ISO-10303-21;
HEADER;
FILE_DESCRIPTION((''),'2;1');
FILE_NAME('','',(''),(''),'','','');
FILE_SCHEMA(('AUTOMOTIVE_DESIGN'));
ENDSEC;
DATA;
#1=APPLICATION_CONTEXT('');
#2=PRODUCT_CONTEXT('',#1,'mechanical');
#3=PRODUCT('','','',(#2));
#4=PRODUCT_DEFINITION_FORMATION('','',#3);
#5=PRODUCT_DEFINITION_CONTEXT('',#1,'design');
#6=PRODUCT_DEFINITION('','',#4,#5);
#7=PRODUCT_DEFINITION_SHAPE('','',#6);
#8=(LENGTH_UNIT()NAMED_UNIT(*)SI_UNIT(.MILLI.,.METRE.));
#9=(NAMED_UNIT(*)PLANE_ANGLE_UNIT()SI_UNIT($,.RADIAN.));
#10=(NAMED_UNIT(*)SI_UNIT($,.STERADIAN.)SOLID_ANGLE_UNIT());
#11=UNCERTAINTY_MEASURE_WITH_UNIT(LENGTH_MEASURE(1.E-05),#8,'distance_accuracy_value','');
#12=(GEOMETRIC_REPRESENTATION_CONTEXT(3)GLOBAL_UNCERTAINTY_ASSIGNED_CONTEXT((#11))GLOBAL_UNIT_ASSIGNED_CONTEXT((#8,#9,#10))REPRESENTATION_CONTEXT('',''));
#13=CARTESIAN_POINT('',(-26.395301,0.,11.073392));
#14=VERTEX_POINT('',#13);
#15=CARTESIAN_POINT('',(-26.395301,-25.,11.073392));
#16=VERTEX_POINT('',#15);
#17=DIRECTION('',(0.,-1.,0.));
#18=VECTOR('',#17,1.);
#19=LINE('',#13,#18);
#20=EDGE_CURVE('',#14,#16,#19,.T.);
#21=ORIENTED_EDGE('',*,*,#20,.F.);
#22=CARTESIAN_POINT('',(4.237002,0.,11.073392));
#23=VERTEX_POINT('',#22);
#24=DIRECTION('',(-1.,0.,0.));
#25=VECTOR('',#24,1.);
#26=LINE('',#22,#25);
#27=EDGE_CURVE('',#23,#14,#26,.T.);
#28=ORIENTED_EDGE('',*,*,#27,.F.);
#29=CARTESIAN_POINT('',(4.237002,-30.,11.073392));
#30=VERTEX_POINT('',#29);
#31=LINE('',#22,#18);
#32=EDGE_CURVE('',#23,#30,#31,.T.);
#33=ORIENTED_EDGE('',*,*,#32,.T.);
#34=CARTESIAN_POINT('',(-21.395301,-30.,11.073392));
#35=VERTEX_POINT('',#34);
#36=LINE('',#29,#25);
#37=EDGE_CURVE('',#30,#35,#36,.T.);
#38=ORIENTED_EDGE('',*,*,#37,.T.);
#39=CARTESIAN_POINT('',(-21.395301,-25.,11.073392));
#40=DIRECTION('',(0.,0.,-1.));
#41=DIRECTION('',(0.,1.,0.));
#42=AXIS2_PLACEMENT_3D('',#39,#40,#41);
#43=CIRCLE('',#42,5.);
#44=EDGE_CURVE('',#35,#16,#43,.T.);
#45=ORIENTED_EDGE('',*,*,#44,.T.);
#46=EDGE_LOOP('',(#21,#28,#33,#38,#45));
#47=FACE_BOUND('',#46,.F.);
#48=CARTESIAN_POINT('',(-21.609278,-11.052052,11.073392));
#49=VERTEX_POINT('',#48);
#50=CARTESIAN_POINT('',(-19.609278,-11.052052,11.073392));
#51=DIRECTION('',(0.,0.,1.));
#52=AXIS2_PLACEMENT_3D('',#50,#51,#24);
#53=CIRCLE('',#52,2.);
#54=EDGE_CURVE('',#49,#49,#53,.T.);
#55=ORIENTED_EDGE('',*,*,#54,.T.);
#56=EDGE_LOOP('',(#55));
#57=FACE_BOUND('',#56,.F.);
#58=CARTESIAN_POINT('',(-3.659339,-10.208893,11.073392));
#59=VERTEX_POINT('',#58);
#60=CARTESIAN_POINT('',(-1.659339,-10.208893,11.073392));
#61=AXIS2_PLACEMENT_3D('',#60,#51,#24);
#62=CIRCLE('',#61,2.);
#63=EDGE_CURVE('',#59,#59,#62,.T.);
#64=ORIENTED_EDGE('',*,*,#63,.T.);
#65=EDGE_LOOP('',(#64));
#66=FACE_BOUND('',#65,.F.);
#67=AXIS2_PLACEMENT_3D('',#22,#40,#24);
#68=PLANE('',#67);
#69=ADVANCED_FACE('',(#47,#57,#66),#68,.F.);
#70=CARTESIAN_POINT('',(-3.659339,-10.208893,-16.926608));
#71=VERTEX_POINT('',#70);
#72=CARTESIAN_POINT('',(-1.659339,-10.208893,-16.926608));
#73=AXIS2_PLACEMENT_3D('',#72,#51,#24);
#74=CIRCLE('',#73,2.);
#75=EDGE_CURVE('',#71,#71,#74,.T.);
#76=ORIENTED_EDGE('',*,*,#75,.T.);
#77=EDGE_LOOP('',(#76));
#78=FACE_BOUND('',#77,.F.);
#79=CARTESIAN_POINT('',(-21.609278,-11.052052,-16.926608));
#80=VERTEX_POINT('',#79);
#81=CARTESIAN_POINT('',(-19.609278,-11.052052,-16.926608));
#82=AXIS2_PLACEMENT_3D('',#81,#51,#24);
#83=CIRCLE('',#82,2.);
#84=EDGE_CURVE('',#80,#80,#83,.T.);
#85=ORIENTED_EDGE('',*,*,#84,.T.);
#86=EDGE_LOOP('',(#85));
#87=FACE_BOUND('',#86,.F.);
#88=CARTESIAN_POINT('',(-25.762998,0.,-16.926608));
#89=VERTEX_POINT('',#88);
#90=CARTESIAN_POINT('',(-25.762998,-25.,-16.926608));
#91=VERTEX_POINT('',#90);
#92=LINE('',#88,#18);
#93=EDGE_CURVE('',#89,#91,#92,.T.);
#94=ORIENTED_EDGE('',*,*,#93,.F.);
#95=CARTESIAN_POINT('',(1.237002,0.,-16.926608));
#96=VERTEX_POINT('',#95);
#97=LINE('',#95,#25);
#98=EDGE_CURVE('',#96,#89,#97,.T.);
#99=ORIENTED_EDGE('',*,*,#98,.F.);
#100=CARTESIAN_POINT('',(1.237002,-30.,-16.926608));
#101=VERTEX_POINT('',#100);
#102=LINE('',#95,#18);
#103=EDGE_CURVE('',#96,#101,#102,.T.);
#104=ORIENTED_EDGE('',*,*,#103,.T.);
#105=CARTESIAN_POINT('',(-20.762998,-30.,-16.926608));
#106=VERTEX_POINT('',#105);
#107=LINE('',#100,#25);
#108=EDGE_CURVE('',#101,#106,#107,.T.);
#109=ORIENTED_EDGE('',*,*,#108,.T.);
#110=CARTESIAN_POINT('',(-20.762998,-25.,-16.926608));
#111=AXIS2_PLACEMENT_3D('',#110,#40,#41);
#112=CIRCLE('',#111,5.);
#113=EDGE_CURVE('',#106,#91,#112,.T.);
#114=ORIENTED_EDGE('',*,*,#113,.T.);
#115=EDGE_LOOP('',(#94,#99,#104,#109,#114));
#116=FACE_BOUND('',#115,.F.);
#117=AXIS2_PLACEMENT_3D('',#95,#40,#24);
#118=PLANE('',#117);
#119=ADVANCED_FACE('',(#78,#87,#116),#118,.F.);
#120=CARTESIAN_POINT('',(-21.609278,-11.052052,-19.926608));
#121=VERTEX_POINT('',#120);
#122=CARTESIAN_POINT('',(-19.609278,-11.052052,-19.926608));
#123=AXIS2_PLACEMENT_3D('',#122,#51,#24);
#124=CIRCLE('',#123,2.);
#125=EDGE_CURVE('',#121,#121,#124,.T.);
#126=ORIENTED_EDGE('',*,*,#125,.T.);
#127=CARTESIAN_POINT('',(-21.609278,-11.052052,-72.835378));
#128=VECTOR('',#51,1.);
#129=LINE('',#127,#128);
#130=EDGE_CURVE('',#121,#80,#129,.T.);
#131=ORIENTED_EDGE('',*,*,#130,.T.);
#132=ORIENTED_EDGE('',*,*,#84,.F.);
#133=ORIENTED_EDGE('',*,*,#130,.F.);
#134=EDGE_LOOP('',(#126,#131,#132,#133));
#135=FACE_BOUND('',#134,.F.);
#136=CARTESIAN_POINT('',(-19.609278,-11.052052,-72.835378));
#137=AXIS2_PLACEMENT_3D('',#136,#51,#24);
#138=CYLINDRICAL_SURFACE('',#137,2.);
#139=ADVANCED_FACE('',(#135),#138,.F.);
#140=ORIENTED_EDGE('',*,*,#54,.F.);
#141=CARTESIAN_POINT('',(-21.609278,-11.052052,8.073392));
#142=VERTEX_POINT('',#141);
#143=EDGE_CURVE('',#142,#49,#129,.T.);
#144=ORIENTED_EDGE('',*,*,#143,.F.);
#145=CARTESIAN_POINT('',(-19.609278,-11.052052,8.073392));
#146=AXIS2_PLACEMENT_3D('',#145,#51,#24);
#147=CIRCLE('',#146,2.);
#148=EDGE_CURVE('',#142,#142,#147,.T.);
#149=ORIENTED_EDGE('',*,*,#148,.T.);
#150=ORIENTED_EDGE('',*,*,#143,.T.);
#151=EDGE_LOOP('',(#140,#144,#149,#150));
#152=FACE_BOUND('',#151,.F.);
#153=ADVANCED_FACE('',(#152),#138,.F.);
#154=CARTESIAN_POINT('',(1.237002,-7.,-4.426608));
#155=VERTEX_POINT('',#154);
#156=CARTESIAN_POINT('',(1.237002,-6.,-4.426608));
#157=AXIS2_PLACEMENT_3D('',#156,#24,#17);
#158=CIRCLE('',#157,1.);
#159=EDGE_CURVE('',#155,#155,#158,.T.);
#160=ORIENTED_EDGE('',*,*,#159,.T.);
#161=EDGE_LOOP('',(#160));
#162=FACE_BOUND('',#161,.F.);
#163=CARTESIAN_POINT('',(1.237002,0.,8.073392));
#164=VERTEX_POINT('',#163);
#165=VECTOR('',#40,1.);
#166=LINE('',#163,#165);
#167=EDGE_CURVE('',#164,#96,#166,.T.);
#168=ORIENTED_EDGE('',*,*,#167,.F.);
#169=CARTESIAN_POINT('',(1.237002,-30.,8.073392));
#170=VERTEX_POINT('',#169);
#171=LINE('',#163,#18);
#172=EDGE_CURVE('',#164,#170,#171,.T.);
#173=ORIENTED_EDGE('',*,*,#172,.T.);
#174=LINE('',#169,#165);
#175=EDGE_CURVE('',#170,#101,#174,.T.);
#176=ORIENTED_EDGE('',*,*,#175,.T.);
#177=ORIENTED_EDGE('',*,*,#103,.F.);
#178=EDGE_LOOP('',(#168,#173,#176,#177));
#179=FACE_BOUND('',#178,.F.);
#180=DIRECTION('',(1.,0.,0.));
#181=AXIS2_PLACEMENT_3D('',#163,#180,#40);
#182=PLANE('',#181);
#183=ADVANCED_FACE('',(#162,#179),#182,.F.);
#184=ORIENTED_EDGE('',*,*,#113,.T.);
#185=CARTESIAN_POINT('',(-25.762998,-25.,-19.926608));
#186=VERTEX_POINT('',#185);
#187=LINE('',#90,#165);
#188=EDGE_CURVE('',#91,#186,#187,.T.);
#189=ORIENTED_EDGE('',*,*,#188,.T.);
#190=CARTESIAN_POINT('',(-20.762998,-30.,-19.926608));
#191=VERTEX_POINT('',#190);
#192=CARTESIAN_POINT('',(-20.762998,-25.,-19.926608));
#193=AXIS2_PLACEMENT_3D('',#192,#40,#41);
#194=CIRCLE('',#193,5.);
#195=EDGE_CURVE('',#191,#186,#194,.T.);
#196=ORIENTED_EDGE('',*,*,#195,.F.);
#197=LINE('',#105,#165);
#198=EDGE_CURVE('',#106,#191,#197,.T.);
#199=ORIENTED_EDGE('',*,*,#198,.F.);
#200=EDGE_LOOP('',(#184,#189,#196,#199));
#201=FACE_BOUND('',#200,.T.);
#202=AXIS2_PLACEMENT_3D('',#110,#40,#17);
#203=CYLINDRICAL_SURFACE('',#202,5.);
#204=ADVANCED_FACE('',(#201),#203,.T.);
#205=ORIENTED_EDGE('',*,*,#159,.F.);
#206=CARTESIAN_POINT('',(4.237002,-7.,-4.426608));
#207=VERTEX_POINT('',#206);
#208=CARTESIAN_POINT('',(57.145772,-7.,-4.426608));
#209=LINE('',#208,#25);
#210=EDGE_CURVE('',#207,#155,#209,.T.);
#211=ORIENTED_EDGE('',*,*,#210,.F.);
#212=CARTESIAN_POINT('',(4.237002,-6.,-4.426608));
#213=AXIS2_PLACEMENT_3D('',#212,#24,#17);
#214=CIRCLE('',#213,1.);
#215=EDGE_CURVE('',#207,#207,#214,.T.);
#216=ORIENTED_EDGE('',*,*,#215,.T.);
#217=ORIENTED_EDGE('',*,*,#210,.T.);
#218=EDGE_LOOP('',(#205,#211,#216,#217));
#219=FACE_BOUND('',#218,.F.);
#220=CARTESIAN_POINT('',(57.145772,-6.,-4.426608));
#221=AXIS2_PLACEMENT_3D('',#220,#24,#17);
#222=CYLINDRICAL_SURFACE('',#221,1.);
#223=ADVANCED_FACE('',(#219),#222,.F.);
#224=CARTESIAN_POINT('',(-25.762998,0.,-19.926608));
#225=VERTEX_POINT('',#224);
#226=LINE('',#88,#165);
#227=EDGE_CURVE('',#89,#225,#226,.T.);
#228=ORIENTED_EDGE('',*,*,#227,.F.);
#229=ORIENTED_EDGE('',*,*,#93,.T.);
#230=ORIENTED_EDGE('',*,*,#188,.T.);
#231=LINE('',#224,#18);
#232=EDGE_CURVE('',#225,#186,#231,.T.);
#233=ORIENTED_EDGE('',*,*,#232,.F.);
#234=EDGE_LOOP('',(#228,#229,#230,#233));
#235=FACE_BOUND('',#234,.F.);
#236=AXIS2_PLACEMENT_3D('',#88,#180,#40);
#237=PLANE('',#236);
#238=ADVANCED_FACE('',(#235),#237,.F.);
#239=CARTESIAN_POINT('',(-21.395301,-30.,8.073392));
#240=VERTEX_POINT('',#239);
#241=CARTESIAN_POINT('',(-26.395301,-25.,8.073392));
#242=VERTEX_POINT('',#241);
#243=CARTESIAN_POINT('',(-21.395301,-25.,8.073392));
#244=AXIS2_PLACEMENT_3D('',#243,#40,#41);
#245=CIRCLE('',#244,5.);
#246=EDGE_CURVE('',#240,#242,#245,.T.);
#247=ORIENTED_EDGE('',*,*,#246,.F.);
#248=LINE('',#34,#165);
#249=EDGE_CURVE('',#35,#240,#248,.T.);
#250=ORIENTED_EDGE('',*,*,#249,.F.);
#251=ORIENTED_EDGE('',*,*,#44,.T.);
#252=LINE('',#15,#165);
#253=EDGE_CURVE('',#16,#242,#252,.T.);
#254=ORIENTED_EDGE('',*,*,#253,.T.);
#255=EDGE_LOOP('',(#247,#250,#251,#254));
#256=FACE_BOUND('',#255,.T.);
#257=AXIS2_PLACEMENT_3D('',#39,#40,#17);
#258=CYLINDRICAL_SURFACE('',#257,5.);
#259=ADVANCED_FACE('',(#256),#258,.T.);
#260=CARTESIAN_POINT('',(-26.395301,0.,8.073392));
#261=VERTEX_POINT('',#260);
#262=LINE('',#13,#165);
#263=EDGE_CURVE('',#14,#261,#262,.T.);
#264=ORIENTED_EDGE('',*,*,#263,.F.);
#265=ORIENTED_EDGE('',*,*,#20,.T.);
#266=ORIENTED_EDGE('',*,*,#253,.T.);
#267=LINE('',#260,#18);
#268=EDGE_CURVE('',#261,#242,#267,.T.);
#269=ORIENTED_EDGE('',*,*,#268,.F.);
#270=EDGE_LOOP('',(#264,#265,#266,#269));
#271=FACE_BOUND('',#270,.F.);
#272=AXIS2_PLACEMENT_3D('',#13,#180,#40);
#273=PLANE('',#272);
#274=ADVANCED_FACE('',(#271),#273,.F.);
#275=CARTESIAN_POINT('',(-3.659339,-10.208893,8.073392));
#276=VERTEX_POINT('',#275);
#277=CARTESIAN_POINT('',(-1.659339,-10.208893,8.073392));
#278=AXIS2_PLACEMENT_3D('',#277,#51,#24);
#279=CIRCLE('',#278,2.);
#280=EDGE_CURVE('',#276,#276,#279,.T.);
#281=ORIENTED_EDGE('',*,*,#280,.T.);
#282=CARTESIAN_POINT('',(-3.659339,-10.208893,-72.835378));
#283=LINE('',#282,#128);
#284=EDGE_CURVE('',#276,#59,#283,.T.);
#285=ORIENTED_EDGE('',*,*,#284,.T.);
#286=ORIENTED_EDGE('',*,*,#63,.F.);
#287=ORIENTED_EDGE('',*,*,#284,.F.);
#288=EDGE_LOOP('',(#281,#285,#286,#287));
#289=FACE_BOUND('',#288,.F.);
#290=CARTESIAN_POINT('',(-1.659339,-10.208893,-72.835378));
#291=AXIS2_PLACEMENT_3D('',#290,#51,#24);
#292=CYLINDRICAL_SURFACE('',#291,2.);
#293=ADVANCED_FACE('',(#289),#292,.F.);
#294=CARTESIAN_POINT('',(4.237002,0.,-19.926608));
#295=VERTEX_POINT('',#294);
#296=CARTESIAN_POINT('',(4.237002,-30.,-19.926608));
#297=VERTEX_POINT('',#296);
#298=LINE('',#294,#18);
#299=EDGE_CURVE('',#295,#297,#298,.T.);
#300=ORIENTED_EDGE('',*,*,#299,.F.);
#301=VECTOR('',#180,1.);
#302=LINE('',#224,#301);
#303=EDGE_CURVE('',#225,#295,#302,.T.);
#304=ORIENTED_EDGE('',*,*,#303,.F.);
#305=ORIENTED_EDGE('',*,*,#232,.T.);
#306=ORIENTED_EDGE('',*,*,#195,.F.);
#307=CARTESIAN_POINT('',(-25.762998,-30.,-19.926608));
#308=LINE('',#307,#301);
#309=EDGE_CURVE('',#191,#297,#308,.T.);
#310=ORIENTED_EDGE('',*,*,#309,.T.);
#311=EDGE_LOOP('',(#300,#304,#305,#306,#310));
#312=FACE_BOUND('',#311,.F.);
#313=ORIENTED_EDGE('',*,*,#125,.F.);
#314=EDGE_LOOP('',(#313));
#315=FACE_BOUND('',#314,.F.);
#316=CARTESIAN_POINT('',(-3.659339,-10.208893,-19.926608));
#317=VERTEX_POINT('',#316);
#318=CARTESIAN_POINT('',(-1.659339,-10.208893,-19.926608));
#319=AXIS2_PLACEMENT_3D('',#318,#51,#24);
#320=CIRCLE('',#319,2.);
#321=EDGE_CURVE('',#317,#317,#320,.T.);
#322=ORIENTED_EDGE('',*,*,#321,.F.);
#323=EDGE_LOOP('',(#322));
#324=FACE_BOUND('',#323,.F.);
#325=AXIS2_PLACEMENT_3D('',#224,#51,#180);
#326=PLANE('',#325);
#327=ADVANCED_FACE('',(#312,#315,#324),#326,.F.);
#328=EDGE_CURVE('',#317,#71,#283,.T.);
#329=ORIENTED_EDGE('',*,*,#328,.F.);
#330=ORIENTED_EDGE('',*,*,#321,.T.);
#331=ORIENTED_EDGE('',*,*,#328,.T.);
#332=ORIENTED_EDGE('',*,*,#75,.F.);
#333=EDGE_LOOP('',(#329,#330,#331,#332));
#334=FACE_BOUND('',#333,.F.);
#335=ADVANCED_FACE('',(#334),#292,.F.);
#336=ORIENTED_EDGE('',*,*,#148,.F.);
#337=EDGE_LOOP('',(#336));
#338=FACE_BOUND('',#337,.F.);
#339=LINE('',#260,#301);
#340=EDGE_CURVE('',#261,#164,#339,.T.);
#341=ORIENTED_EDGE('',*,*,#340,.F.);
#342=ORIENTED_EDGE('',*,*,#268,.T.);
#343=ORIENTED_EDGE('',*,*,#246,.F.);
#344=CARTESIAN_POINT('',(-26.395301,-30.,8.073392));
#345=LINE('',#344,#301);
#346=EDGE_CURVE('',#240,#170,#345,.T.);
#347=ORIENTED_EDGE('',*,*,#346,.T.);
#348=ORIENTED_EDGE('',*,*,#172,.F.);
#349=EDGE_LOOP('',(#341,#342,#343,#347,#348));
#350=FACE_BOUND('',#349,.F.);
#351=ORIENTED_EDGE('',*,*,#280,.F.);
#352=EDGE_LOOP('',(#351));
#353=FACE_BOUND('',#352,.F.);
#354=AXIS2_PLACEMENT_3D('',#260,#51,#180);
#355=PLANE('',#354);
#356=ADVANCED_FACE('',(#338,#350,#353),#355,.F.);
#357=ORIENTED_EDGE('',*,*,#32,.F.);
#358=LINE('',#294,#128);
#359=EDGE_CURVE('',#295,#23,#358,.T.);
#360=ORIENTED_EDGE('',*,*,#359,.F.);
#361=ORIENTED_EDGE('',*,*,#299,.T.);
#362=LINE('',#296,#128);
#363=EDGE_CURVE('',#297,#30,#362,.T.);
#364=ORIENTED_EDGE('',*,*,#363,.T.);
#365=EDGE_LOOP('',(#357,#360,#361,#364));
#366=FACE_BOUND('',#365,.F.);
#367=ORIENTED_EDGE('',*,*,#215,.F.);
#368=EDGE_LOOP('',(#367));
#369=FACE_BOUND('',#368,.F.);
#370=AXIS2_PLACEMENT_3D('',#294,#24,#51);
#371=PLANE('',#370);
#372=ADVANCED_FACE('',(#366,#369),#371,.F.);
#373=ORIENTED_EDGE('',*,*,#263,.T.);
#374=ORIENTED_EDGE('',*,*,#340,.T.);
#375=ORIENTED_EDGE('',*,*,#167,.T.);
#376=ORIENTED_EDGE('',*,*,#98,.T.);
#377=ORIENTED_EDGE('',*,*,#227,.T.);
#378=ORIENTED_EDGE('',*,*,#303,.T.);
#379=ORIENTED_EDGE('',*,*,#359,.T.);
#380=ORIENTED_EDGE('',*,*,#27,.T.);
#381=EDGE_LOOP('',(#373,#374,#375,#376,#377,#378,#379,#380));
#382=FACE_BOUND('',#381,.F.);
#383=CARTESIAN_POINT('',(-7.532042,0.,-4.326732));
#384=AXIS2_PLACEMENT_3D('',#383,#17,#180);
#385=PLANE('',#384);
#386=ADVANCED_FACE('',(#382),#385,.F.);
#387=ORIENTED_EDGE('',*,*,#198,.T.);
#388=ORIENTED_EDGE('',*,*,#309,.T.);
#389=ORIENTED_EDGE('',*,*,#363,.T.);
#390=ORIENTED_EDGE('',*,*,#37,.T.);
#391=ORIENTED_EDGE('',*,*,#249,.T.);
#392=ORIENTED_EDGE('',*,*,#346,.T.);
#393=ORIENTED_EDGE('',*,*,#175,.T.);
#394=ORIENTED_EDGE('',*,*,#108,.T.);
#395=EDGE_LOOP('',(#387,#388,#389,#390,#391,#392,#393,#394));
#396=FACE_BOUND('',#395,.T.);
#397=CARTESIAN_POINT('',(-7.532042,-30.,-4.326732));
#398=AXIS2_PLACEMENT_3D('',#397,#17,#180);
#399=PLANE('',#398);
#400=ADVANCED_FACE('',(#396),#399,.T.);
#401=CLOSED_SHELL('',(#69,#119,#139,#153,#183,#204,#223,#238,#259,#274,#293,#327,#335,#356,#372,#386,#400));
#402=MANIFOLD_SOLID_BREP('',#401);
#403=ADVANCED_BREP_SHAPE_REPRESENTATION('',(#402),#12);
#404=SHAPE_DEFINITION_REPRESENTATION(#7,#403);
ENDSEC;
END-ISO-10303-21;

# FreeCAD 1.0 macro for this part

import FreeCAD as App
import Part
import Sketcher

V = App.Vector


def edges_at(feature, points):
    """Names of the edges that pass closest to the given points."""
    edges = feature.Shape.Edges
    near = lambda p: min(range(len(edges)), key=lambda i: edges[i].distToShape(Part.Vertex(*p))[0])
    return sorted({f"Edge{near(p) + 1}" for p in points})


def add_polygon(sketch, points):
    """Adds a closed chain of lines whose ends are joined by coincident constraints."""
    first, n = sketch.GeometryCount, len(points)
    for a, b in zip(points, points[1:] + points[:1]):
        sketch.addGeometry(Part.LineSegment(App.Vector(*a, 0), App.Vector(*b, 0)), False)
    for i in range(n):
        sketch.addConstraint(Sketcher.Constraint("Coincident", first + i, 2, first + (i + 1) % n, 1))

doc = App.newDocument("Part")
params = doc.addObject("Spreadsheet::Sheet", "Params")
for row, (alias, value) in enumerate([
    ("sketch1_width", "30 mm"),
    ("sketch1_width2", "27 mm"),
    ("sketch1_height", "3 mm"),
    ("sketch1_height2", "31 mm"),
    ("pad1_length", "30 mm"),
    ("sketch2_diameter", "2 mm"),
    ("hole_diameter", "2 mm"),
    ("sketch3_diameter", "4 mm"),
    ("hole2_diameter", "4 mm"),
    ("fillet_radius", "5 mm"),
    ("fillet2_radius", "5 mm"),
], start=1):
    params.set(f"A{row}", alias)
    params.set(f"B{row}", "=" + value)
    params.setAlias(f"B{row}", alias)

body = doc.addObject("PartDesign::Body", "Body")

sketch1 = body.newObject("Sketcher::SketchObject", "Sketch")
sketch1.AttachmentSupport = (doc.getObject("XZ_Plane"), [""])
sketch1.MapMode = "FlatFace"
add_polygon(sketch1, [(-25.8, -16.9), (-25.8, -19.9), (4.2, -19.9), (4.2, 11.1), (-26.4, 11.1), (-26.4, 8.1), (1.2, 8.1), (1.2, -16.9)])
sketch1.addConstraint([
    Sketcher.Constraint("Vertical", 0),
    Sketcher.Constraint("Horizontal", 1),
    Sketcher.Constraint("Vertical", 2),
    Sketcher.Constraint("Horizontal", 3),
    Sketcher.Constraint("Vertical", 4),
    Sketcher.Constraint("Horizontal", 5),
    Sketcher.Constraint("Vertical", 6),
    Sketcher.Constraint("Horizontal", 7),
    Sketcher.Constraint("Equal", 0, 4),
    Sketcher.Constraint("DistanceX", 1, 1, 1, 2, 30.0),
    Sketcher.Constraint("DistanceX", 7, 2, 7, 1, 27.0),
    Sketcher.Constraint("DistanceY", 0, 2, 0, 1, 3.0),
    Sketcher.Constraint("DistanceY", 2, 1, 2, 2, 31.0),
    Sketcher.Constraint("DistanceX", -1, 1, 5, 2, 1.237002),
    Sketcher.Constraint("DistanceX", 3, 2, -1, 1, 26.395301),
    Sketcher.Constraint("DistanceY", 0, 2, -1, 1, 19.926608),
])
sketch1.setExpression("Constraints[17]", "Params.sketch1_width")
sketch1.setExpression("Constraints[18]", "Params.sketch1_width2")
sketch1.setExpression("Constraints[19]", "Params.sketch1_height")
sketch1.setExpression("Constraints[20]", "Params.sketch1_height2")
pad1 = body.newObject("PartDesign::Pad", "Pad")
pad1.Profile = sketch1
pad1.setExpression("Length", "Params.pad1_length")

sketch2 = body.newObject("Sketcher::SketchObject", "Sketch001")
sketch2.AttachmentSupport = (doc.getObject("YZ_Plane"), [""])
sketch2.MapMode = "FlatFace"
sketch2.AttachmentOffset = App.Placement(V(0, 0, 4.237002), App.Rotation())
sketch2.addGeometry(Part.Circle(V(-6, -4.4, 0), V(0, 0, 1), 1), False)
sketch2.addConstraint([
    Sketcher.Constraint("Diameter", 0, 2.0),
    Sketcher.Constraint("DistanceX", 0, 3, -1, 1, 6.0),
    Sketcher.Constraint("DistanceY", 0, 3, -1, 1, 4.426608),
])
sketch2.setExpression("Constraints[0]", "Params.sketch2_diameter")
doc.recompute()
hole = body.newObject("PartDesign::Hole", "Hole")
hole.Profile = sketch2
hole.ThreadType = "None"
hole.setExpression("Diameter", "Params.hole_diameter")
hole.DepthType = "ThroughAll"

sketch3 = body.newObject("Sketcher::SketchObject", "Sketch002")
sketch3.AttachmentSupport = (doc.getObject("XY_Plane"), [""])
sketch3.MapMode = "FlatFace"
sketch3.AttachmentOffset = App.Placement(V(0, 0, -19.926608), App.Rotation())
sketch3.addGeometry([
    Part.Circle(V(-19.6, -11.1, 0), V(0, 0, 1), 2),
    Part.Circle(V(-1.7, -10.2, 0), V(0, 0, 1), 2),
], False)
sketch3.addConstraint([
    Sketcher.Constraint("Equal", 0, 1),
    Sketcher.Constraint("Diameter", 0, 4.0),
    Sketcher.Constraint("DistanceX", 0, 3, -1, 1, 19.609278),
    Sketcher.Constraint("DistanceX", 1, 3, -1, 1, 1.659339),
    Sketcher.Constraint("DistanceY", 0, 3, 1, 3, 0.843159),
    Sketcher.Constraint("DistanceY", 0, 3, -1, 1, 11.052052),
])
sketch3.setExpression("Constraints[1]", "Params.sketch3_diameter")
doc.recompute()
hole2 = body.newObject("PartDesign::Hole", "Hole001")
hole2.Profile = sketch3
hole2.ThreadType = "None"
hole2.setExpression("Diameter", "Params.hole2_diameter")
hole2.DepthType = "ThroughAll"
hole2.Reversed = True
doc.recompute()

fillet = body.newObject("PartDesign::Fillet", "Fillet")
fillet.Base = (hole2, edges_at(hole2, [(-26.395, -30, 9.573)]))
fillet.setExpression("Radius", "Params.fillet_radius")
doc.recompute()

fillet2 = body.newObject("PartDesign::Fillet", "Fillet001")
fillet2.Base = (fillet, edges_at(fillet, [(-25.763, -30, -18.427)]))
fillet2.setExpression("Radius", "Params.fillet2_radius")

doc.recompute()
